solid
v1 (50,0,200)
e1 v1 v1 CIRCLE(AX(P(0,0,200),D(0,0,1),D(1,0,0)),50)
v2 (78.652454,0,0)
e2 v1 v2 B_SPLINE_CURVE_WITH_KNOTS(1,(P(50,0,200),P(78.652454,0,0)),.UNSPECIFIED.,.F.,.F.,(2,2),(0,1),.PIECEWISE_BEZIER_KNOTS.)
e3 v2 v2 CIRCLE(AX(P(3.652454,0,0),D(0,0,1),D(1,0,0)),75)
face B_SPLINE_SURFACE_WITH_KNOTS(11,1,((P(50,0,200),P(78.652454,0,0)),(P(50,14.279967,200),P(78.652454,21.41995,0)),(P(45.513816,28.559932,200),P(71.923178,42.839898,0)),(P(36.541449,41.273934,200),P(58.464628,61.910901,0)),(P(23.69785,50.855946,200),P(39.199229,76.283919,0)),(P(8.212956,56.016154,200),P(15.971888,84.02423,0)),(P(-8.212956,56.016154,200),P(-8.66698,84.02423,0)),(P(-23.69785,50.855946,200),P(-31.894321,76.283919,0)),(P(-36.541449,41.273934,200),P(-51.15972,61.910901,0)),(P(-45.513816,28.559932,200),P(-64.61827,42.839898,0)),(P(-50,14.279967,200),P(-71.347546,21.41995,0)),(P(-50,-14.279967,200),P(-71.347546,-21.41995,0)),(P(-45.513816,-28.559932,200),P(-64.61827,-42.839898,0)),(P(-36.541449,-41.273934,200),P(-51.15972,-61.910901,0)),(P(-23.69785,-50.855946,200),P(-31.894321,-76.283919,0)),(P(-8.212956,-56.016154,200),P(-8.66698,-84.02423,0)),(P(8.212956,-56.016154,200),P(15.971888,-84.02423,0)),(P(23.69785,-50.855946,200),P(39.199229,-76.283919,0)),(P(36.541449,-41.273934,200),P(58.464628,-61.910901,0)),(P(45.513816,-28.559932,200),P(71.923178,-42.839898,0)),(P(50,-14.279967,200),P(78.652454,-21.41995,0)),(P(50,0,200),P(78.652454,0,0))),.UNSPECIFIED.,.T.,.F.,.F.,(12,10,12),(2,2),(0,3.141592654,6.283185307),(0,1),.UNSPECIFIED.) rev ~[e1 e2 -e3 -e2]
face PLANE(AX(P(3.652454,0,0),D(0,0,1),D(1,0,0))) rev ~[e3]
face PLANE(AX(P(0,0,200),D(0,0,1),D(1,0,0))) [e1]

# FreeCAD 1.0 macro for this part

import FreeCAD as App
import Part
import Sketcher

doc = App.newDocument("Part")
body = doc.addObject("PartDesign::Body", "Body")

sketch1 = doc.addObject("Sketcher::SketchObject", "Sketch")
body.addObject(sketch1)
sketch1.AttachmentSupport = (doc.XY_Plane, [""])
sketch1.MapMode = "FlatFace"
sketch1.AttachmentOffset = App.Placement(App.Vector(0, 0, 200), App.Rotation())
sketch1.addGeometry(Part.Circle(App.Vector(0, 0, 0), App.Vector(0, 0, 1), 50), False)
sketch1.addConstraint([
    Sketcher.Constraint("Coincident", 0, 3, -1, 1),
    Sketcher.Constraint("Diameter", 0, 100.0),
])

sketch2 = doc.addObject("Sketcher::SketchObject", "Sketch001")
body.addObject(sketch2)
sketch2.AttachmentSupport = (doc.XY_Plane, [""])
sketch2.MapMode = "FlatFace"
sketch2.addGeometry(Part.Circle(App.Vector(4, 0, 0), App.Vector(0, 0, 1), 75), False)
sketch2.addConstraint([
    Sketcher.Constraint("PointOnObject", 0, 3, -1),
    Sketcher.Constraint("Diameter", 0, 150.0),
    Sketcher.Constraint("DistanceX", -1, 1, 0, 3, 3.652454),
])

additiveloft = doc.addObject("PartDesign::AdditiveLoft", "AdditiveLoft")
body.addObject(additiveloft)
additiveloft.Profile = sketch1
additiveloft.Sections = [sketch2]

doc.recompute()
